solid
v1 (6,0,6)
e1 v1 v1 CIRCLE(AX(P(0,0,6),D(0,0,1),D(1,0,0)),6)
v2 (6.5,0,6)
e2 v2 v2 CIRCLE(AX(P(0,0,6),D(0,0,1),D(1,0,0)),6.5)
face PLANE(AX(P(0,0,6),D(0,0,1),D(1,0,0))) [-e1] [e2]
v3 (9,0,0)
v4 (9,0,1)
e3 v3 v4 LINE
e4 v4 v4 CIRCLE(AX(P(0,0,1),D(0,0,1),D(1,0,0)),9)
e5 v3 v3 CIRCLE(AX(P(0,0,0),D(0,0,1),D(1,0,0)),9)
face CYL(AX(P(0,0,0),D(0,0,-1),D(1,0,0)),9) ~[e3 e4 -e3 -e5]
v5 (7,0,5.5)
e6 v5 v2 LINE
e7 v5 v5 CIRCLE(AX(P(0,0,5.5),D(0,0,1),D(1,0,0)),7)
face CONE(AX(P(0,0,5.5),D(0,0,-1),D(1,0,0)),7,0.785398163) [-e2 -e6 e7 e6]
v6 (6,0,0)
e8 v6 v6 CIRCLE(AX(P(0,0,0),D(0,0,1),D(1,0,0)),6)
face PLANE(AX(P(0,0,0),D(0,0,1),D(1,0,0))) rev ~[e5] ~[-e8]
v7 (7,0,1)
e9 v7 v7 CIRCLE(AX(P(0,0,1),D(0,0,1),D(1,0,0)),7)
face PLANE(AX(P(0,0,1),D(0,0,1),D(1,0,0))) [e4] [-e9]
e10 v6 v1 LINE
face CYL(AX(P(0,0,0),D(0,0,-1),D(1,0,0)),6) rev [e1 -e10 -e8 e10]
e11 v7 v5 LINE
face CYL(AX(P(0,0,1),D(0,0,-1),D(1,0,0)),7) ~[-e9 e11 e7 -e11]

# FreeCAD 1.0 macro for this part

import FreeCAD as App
import Part
import Sketcher
from FreeCAD import Vector


def edges_at(feature, points):
    """Names of the edges that pass closest to the given points."""
    edges = feature.Shape.Edges
    near = lambda p: min(range(len(edges)), key=lambda i: edges[i].distToShape(Part.Vertex(*p))[0])
    return sorted({f"Edge{near(p) + 1}" for p in points})

doc = App.newDocument("Part")
body = doc.addObject("PartDesign::Body", "Body")

# Sketch on XY plane
sketch1 = body.newObject("Sketcher::SketchObject", "Sketch")
sketch1.AttachmentSupport = (doc.getObject("XY_Plane"), [""])
sketch1.MapMode = "FlatFace"
sketch1.addGeometry(Part.Circle(Vector(0, 0, 0), Vector(0, 0, 1), 9), False)
sketch1.addGeometry(Part.Circle(Vector(0, 0, 0), Vector(0, 0, 1), 6), False)
sketch1.addConstraint(Sketcher.Constraint("Coincident", 0, 3, -1, 1))
sketch1.addConstraint(Sketcher.Constraint("Coincident", 1, 3, -1, 1))
sketch1.addConstraint(Sketcher.Constraint("Diameter", 0, 18.0))
sketch1.addConstraint(Sketcher.Constraint("Diameter", 1, 12.0))
pad1 = body.newObject("PartDesign::Pad", "Pad")
pad1.Profile = sketch1
pad1.Length = 1

# Sketch on XY plane
sketch2 = body.newObject("Sketcher::SketchObject", "Sketch001")
sketch2.AttachmentSupport = (doc.getObject("XY_Plane"), [""])
sketch2.MapMode = "FlatFace"
sketch2.AttachmentOffset = App.Placement(Vector(0, 0, 1), App.Rotation())
sketch2.addGeometry(Part.Circle(Vector(0, 0, 0), Vector(0, 0, 1), 7), False)
sketch2.addGeometry(Part.Circle(Vector(0, 0, 0), Vector(0, 0, 1), 6), False)
sketch2.addConstraint(Sketcher.Constraint("Coincident", 0, 3, -1, 1))
sketch2.addConstraint(Sketcher.Constraint("Coincident", 1, 3, -1, 1))
sketch2.addConstraint(Sketcher.Constraint("Diameter", 0, 14.0))
sketch2.addConstraint(Sketcher.Constraint("Diameter", 1, 12.0))
pad2 = body.newObject("PartDesign::Pad", "Pad001")
pad2.Profile = sketch2
pad2.Length = 5
doc.recompute()

chamfer = body.newObject("PartDesign::Chamfer", "Chamfer")
chamfer.Base = (pad2, edges_at(pad2, [(-7, 0, 6)]))
chamfer.Size = 0.5

doc.recompute()
